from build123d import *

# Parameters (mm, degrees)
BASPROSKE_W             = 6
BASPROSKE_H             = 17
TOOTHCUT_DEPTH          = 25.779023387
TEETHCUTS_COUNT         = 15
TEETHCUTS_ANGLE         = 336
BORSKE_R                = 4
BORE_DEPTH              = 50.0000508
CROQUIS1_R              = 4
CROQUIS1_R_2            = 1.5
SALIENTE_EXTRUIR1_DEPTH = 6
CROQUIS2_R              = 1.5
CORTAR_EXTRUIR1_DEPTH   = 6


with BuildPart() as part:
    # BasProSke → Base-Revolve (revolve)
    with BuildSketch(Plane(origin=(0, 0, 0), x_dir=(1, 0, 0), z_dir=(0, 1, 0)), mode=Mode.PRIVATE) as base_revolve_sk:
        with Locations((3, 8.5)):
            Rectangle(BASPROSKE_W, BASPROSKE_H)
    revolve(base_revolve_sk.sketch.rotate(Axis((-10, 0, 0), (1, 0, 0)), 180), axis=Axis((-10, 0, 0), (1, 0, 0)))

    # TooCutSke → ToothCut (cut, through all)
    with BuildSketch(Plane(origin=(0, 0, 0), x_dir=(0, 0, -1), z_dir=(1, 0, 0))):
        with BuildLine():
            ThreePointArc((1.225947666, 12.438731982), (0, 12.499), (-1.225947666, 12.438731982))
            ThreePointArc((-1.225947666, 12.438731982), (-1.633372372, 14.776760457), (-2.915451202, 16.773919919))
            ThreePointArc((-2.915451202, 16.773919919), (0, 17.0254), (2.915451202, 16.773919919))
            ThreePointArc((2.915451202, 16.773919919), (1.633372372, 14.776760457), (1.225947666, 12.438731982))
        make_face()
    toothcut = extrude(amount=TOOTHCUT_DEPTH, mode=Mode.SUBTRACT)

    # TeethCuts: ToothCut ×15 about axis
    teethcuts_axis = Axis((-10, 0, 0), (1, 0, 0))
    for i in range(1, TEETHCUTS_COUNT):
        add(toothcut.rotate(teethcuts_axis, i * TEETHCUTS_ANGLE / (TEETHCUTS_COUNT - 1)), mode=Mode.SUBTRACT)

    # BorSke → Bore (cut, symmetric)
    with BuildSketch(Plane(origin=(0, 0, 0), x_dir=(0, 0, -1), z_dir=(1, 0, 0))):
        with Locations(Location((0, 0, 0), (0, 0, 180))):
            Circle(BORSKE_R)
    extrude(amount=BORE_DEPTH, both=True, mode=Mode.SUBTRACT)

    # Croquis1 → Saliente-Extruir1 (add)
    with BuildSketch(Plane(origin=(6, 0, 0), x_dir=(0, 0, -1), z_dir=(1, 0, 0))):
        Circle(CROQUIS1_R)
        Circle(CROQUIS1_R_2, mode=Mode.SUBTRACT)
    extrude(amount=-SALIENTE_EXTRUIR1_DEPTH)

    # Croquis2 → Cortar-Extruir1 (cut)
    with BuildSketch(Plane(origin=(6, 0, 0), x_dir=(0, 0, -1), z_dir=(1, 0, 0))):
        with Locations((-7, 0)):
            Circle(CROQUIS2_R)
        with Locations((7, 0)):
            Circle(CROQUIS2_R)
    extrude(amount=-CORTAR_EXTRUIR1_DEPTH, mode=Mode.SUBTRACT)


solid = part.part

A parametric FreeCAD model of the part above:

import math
import FreeCAD as App
import Part
import Sketcher
from FreeCAD import Vector
Q = App.Units.Quantity

doc = App.newDocument("Part")
body = doc.addObject("PartDesign::Body", "Body")

# Sketch on XZ plane
sketch1 = body.newObject("Sketcher::SketchObject", "Sketch")
sketch1.AttachmentSupport = (doc.getObject("XZ_Plane"), [""])
sketch1.MapMode = "FlatFace"
sketch1.addGeometry([
    Part.LineSegment(Vector(0, -17, 0), Vector(0, 0, 0)),
    Part.LineSegment(Vector(0, 0, 0), Vector(6, 0, 0)),
    Part.LineSegment(Vector(6, 0, 0), Vector(6, -17, 0)),
    Part.LineSegment(Vector(6, -17, 0), Vector(0, -17, 0)),
], False)
sketch1.addConstraint([
    Sketcher.Constraint("Coincident", 0, 2, 1, 1),
    Sketcher.Constraint("Coincident", 1, 2, 2, 1),
    Sketcher.Constraint("Coincident", 2, 2, 3, 1),
    Sketcher.Constraint("Coincident", 3, 2, 0, 1),
    Sketcher.Constraint("Vertical", 0),
    Sketcher.Constraint("Horizontal", 1),
    Sketcher.Constraint("Vertical", 2),
    Sketcher.Constraint("Horizontal", 3),
    Sketcher.Constraint("Coincident", 0, 2, -1, 1),
    Sketcher.Constraint("DistanceX", 1, 1, 1, 2, Q("6 mm")),
    Sketcher.Constraint("DistanceY", 0, 1, 0, 2, Q("17 mm")),
])
revolution = body.newObject("PartDesign::Revolution", "Revolution")
revolution.Profile = sketch1
revolution.ReferenceAxis = (sketch1, ["H_Axis"])
revolution.Angle = 360

# Sketch on YZ plane
sketch2 = body.newObject("Sketcher::SketchObject", "Sketch001")
sketch2.AttachmentSupport = (doc.getObject("YZ_Plane"), [""])
sketch2.MapMode = "FlatFace"
sketch2.addGeometry([
    Part.ArcOfCircle(Part.Circle(Vector(0, 0, 0), Vector(0, 0, 1), 12.499), math.radians(-5.62883), math.radians(5.62883)),
    Part.ArcOfCircle(Part.Circle(Vector(12.598054, -7.223832, 0), Vector(0, 0, 1), 6), math.radians(45.894827), math.radians(91.521593)),
    Part.ArcOfCircle(Part.Circle(Vector(0, 0, 0), Vector(0, 0, 1), 17.0254), math.radians(-9.859997), math.radians(9.859997)),
    Part.ArcOfCircle(Part.Circle(Vector(12.598054, 7.223832, 0), Vector(0, 0, 1), 6), math.radians(-91.521593), math.radians(-45.894827)),
], False)
sketch2.addConstraint([
    Sketcher.Constraint("Coincident", 0, 1, 1, 2),
    Sketcher.Constraint("Coincident", 1, 1, 2, 1),
    Sketcher.Constraint("Coincident", 2, 2, 3, 2),
    Sketcher.Constraint("Coincident", 3, 1, 0, 2),
    Sketcher.Constraint("Coincident", 0, 3, -1, 1),
    Sketcher.Constraint("Coincident", 2, 3, -1, 1),
    Sketcher.Constraint("Equal", 1, 3),
    Sketcher.Constraint("Symmetric", 1, 3, 3, 3, -1),
    Sketcher.Constraint("Radius", 1, Q("6 mm")),
    Sketcher.Constraint("Radius", 0, Q("12.499 mm")),
    Sketcher.Constraint("Radius", 2, Q("17.0254 mm")),
    Sketcher.Constraint("DistanceY", 0, 1, 2, 2, Q("4.141399 mm")),
    Sketcher.Constraint("DistanceX", -1, 1, 0, 1, Q("12.438732 mm")),
])
pocket1 = body.newObject("PartDesign::Pocket", "Pocket")
pocket1.Profile = sketch2
pocket1.Type = "ThroughAll"
pocket1.Reversed = True
doc.recompute()

polarpattern = body.newObject("PartDesign::PolarPattern", "PolarPattern")
polarpattern.Originals = [pocket1]
polarpattern.Axis = (doc.getObject("X_Axis"), [""])
polarpattern.Angle = 360
polarpattern.Occurrences = 15
body.Tip = polarpattern

# Sketch on YZ plane
sketch3 = body.newObject("Sketcher::SketchObject", "Sketch002")
sketch3.AttachmentSupport = (doc.getObject("YZ_Plane"), [""])
sketch3.MapMode = "FlatFace"
sketch3.addGeometry(Part.Circle(Vector(0, 0, 0), Vector(0, 0, 1), 4), False)
sketch3.addConstraint([
    Sketcher.Constraint("Coincident", 0, 3, -1, 1),
    Sketcher.Constraint("Diameter", 0, Q("8 mm")),
])
pocket2 = body.newObject("PartDesign::Pocket", "Pocket001")
pocket2.Profile = sketch3
pocket2.Length = 100.000102
pocket2.Midplane = True

# Sketch on YZ plane
sketch4 = body.newObject("Sketcher::SketchObject", "Sketch003")
sketch4.AttachmentSupport = (doc.getObject("YZ_Plane"), [""])
sketch4.MapMode = "FlatFace"
sketch4.AttachmentOffset = App.Placement(Vector(0, 0, 6), App.Rotation())
sketch4.addGeometry([
    Part.Circle(Vector(0, 0, 0), Vector(0, 0, 1), 4),
    Part.Circle(Vector(0, 0, 0), Vector(0, 0, 1), 1.5),
], False)
sketch4.addConstraint([
    Sketcher.Constraint("Coincident", 0, 3, -1, 1),
    Sketcher.Constraint("Coincident", 1, 3, -1, 1),
    Sketcher.Constraint("Diameter", 0, Q("8 mm")),
    Sketcher.Constraint("Diameter", 1, Q("3 mm")),
])
pad1 = body.newObject("PartDesign::Pad", "Pad")
pad1.Profile = sketch4
pad1.Length = 6
pad1.Reversed = True

# Sketch on YZ plane
sketch5 = body.newObject("Sketcher::SketchObject", "Sketch004")
sketch5.AttachmentSupport = (doc.getObject("YZ_Plane"), [""])
sketch5.MapMode = "FlatFace"
sketch5.AttachmentOffset = App.Placement(Vector(0, 0, 6), App.Rotation())
sketch5.addGeometry([
    Part.Circle(Vector(0, 7, 0), Vector(0, 0, 1), 1.5),
    Part.Circle(Vector(0, -7, 0), Vector(0, 0, 1), 1.5),
], False)
sketch5.addConstraint([
    Sketcher.Constraint("Equal", 0, 1),
    Sketcher.Constraint("Symmetric", 0, 3, 1, 3, -1, 1),
    Sketcher.Constraint("PointOnObject", 0, 3, -2),
    Sketcher.Constraint("Diameter", 0, Q("3 mm")),
    Sketcher.Constraint("DistanceY", -1, 1, 0, 3, Q("7 mm")),
])
pocket3 = body.newObject("PartDesign::Pocket", "Pocket002")
pocket3.Profile = sketch5
pocket3.Length = 6

doc.recompute()
